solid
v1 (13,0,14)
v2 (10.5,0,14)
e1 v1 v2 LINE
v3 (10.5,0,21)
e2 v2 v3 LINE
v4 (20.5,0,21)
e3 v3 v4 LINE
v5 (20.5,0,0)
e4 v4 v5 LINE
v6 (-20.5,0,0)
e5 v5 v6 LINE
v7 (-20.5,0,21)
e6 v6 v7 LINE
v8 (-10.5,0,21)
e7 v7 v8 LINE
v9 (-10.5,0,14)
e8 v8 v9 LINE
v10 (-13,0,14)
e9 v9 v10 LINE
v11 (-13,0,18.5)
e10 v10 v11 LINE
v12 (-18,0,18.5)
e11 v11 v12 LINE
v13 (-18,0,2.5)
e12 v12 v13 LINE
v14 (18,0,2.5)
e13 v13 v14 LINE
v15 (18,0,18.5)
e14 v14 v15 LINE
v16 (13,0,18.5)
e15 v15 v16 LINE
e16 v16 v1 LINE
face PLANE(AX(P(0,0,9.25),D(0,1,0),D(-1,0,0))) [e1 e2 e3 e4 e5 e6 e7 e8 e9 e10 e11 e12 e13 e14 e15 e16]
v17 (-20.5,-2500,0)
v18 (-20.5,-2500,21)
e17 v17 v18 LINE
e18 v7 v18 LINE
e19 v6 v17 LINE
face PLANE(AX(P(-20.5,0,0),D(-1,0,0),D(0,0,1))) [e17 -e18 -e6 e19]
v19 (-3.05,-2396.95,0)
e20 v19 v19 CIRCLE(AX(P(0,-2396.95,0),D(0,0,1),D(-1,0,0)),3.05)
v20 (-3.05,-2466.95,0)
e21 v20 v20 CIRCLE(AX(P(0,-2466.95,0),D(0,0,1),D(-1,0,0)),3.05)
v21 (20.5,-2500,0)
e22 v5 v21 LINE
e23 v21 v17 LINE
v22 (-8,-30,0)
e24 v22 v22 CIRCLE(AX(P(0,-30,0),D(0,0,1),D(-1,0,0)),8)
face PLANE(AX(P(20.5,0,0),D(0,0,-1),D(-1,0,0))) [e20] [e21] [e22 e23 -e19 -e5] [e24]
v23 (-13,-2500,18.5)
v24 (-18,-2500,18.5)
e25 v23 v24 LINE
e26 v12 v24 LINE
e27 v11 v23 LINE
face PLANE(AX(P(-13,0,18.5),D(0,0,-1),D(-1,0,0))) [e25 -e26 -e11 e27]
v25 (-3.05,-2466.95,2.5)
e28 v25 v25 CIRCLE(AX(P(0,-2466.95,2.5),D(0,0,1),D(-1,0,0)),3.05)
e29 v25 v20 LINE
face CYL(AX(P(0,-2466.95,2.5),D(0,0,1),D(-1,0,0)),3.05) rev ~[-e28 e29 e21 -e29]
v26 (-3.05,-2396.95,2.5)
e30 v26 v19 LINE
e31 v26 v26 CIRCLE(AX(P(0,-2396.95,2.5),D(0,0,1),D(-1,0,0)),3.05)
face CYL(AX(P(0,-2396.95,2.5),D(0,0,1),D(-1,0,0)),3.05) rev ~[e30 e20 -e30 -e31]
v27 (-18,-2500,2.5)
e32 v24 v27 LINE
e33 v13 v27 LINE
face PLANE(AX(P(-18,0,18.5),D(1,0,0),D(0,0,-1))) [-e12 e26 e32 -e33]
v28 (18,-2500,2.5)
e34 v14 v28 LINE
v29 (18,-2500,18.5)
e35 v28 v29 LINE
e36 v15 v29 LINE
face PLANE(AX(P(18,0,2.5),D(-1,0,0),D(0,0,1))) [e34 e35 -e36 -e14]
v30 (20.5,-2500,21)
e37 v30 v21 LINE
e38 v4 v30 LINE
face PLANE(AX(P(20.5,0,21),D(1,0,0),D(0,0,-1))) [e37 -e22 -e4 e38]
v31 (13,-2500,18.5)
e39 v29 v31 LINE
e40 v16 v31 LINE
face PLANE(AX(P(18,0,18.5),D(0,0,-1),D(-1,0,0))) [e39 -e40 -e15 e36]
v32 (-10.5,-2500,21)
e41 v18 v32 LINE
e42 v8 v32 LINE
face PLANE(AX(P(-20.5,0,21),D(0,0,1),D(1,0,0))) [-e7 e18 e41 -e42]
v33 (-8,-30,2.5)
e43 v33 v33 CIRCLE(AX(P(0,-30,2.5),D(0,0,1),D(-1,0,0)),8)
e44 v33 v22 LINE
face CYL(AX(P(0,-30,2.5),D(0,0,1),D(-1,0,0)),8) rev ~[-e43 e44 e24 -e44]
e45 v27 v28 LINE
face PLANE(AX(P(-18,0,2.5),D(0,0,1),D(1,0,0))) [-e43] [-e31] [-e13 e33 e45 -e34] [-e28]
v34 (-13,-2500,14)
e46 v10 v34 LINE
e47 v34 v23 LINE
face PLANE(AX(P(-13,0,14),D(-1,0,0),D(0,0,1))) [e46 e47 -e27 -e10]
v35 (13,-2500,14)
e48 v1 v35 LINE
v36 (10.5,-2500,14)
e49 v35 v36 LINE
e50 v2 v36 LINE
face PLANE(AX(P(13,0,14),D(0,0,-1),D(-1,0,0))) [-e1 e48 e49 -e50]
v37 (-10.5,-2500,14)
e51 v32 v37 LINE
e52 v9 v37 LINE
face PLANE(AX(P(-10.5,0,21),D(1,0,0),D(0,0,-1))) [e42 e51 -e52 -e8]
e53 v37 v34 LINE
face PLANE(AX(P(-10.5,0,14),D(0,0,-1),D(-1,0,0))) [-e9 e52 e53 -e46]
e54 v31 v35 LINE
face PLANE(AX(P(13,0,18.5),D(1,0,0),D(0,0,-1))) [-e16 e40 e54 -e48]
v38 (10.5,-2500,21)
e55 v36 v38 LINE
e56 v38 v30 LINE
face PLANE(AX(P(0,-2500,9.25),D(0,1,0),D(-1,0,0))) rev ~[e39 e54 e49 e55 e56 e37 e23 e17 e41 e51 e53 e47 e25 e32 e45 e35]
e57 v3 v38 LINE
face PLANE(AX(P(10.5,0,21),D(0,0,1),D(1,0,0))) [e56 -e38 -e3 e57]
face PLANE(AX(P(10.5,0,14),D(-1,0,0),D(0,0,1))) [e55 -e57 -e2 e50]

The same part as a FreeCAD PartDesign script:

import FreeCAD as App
import Part
import Sketcher
from FreeCAD import Vector


def add_polygon(sketch, points):
    """Adds a closed chain of lines whose ends are joined by coincident constraints."""
    first, n = sketch.GeometryCount, len(points)
    for a, b in zip(points, points[1:] + points[:1]):
        sketch.addGeometry(Part.LineSegment(App.Vector(*a, 0), App.Vector(*b, 0)), False)
    for i in range(n):
        sketch.addConstraint(Sketcher.Constraint("Coincident", first + i, 2, first + (i + 1) % n, 1))

doc = App.newDocument("Part")
body = doc.addObject("PartDesign::Body", "Body")

# Sketch on XZ plane
sketch1 = body.newObject("Sketcher::SketchObject", "Sketch")
sketch1.AttachmentSupport = (doc.getObject("XZ_Plane"), [""])
sketch1.MapMode = "FlatFace"
add_polygon(sketch1, [(-20.5, 21), (-20.5, 0), (20.5, 0), (20.5, 21), (10.5, 21), (10.5, 14), (13, 14), (13, 18.5), (18, 18.5), (18, 2.5), (-18, 2.5), (-18, 18.5), (-13, 18.5), (-13, 14), (-10.5, 14), (-10.5, 21)])  # lines 0-15
sketch1.addConstraint(Sketcher.Constraint("Vertical", 0))
sketch1.addConstraint(Sketcher.Constraint("Horizontal", 1))
sketch1.addConstraint(Sketcher.Constraint("Vertical", 2))
sketch1.addConstraint(Sketcher.Constraint("Horizontal", 3))
sketch1.addConstraint(Sketcher.Constraint("Vertical", 4))
sketch1.addConstraint(Sketcher.Constraint("Horizontal", 5))
sketch1.addConstraint(Sketcher.Constraint("Vertical", 6))
sketch1.addConstraint(Sketcher.Constraint("Horizontal", 7))
sketch1.addConstraint(Sketcher.Constraint("Vertical", 8))
sketch1.addConstraint(Sketcher.Constraint("Horizontal", 9))
sketch1.addConstraint(Sketcher.Constraint("Vertical", 10))
sketch1.addConstraint(Sketcher.Constraint("Horizontal", 11))
sketch1.addConstraint(Sketcher.Constraint("Vertical", 12))
sketch1.addConstraint(Sketcher.Constraint("Horizontal", 13))
sketch1.addConstraint(Sketcher.Constraint("Vertical", 14))
sketch1.addConstraint(Sketcher.Constraint("Horizontal", 15))
sketch1.addConstraint(Sketcher.Constraint("Symmetric", 0, 2, 1, 2, -1, 1))
sketch1.addConstraint(Sketcher.Constraint("Symmetric", 7, 2, 10, 2, -2))
sketch1.addConstraint(Sketcher.Constraint("Symmetric", 5, 2, 12, 2, -2))
sketch1.addConstraint(Sketcher.Constraint("Symmetric", 3, 2, 14, 2, -2))
sketch1.addConstraint(Sketcher.Constraint("DistanceX", 1, 1, 1, 2, 41.0))
sketch1.addConstraint(Sketcher.Constraint("DistanceX", 3, 2, 3, 1, 10.0))
sketch1.addConstraint(Sketcher.Constraint("DistanceX", 7, 1, 7, 2, 5.0))
sketch1.addConstraint(Sketcher.Constraint("DistanceX", 9, 2, 9, 1, 36.0))
sketch1.addConstraint(Sketcher.Constraint("DistanceY", 0, 2, 0, 1, 21.0))
sketch1.addConstraint(Sketcher.Constraint("DistanceY", 4, 2, 4, 1, 7.0))
sketch1.addConstraint(Sketcher.Constraint("DistanceY", 8, 2, 8, 1, 16.0))
sketch1.addConstraint(Sketcher.Constraint("DistanceY", 6, 1, 6, 2, 4.5))
pad1 = body.newObject("PartDesign::Pad", "Pad")
pad1.Profile = sketch1
pad1.Length = 2500

# Sketch on XY plane
sketch2 = body.newObject("Sketcher::SketchObject", "Sketch001")
sketch2.AttachmentSupport = (doc.getObject("XY_Plane"), [""])
sketch2.MapMode = "FlatFace"
sketch2.AttachmentOffset = App.Placement(Vector(0, 0, 2.5), App.Rotation())
sketch2.addGeometry(Part.Circle(Vector(0, -30, 0), Vector(0, 0, 1), 8), False)
sketch2.addGeometry(Part.Circle(Vector(0, -2466.9, 0), Vector(0, 0, 1), 3), False)
sketch2.addGeometry(Part.Circle(Vector(0, -2396.9, 0), Vector(0, 0, 1), 3), False)
sketch2.addConstraint(Sketcher.Constraint("Equal", 1, 2))
sketch2.addConstraint(Sketcher.Constraint("PointOnObject", 0, 3, -2))
sketch2.addConstraint(Sketcher.Constraint("PointOnObject", 1, 3, -2))
sketch2.addConstraint(Sketcher.Constraint("PointOnObject", 2, 3, -2))
sketch2.addConstraint(Sketcher.Constraint("Diameter", 0, 16.0))
sketch2.addConstraint(Sketcher.Constraint("Diameter", 1, 6.1))
sketch2.addConstraint(Sketcher.Constraint("DistanceY", 0, 3, -1, 1, 30.0))
sketch2.addConstraint(Sketcher.Constraint("DistanceY", 1, 3, 2, 3, 70.0))
sketch2.addConstraint(Sketcher.Constraint("DistanceY", 1, 3, -1, 1, 2466.95))
pocket1 = body.newObject("PartDesign::Pocket", "Pocket")
pocket1.Profile = sketch2
pocket1.Length = 2.5

doc.recompute()
